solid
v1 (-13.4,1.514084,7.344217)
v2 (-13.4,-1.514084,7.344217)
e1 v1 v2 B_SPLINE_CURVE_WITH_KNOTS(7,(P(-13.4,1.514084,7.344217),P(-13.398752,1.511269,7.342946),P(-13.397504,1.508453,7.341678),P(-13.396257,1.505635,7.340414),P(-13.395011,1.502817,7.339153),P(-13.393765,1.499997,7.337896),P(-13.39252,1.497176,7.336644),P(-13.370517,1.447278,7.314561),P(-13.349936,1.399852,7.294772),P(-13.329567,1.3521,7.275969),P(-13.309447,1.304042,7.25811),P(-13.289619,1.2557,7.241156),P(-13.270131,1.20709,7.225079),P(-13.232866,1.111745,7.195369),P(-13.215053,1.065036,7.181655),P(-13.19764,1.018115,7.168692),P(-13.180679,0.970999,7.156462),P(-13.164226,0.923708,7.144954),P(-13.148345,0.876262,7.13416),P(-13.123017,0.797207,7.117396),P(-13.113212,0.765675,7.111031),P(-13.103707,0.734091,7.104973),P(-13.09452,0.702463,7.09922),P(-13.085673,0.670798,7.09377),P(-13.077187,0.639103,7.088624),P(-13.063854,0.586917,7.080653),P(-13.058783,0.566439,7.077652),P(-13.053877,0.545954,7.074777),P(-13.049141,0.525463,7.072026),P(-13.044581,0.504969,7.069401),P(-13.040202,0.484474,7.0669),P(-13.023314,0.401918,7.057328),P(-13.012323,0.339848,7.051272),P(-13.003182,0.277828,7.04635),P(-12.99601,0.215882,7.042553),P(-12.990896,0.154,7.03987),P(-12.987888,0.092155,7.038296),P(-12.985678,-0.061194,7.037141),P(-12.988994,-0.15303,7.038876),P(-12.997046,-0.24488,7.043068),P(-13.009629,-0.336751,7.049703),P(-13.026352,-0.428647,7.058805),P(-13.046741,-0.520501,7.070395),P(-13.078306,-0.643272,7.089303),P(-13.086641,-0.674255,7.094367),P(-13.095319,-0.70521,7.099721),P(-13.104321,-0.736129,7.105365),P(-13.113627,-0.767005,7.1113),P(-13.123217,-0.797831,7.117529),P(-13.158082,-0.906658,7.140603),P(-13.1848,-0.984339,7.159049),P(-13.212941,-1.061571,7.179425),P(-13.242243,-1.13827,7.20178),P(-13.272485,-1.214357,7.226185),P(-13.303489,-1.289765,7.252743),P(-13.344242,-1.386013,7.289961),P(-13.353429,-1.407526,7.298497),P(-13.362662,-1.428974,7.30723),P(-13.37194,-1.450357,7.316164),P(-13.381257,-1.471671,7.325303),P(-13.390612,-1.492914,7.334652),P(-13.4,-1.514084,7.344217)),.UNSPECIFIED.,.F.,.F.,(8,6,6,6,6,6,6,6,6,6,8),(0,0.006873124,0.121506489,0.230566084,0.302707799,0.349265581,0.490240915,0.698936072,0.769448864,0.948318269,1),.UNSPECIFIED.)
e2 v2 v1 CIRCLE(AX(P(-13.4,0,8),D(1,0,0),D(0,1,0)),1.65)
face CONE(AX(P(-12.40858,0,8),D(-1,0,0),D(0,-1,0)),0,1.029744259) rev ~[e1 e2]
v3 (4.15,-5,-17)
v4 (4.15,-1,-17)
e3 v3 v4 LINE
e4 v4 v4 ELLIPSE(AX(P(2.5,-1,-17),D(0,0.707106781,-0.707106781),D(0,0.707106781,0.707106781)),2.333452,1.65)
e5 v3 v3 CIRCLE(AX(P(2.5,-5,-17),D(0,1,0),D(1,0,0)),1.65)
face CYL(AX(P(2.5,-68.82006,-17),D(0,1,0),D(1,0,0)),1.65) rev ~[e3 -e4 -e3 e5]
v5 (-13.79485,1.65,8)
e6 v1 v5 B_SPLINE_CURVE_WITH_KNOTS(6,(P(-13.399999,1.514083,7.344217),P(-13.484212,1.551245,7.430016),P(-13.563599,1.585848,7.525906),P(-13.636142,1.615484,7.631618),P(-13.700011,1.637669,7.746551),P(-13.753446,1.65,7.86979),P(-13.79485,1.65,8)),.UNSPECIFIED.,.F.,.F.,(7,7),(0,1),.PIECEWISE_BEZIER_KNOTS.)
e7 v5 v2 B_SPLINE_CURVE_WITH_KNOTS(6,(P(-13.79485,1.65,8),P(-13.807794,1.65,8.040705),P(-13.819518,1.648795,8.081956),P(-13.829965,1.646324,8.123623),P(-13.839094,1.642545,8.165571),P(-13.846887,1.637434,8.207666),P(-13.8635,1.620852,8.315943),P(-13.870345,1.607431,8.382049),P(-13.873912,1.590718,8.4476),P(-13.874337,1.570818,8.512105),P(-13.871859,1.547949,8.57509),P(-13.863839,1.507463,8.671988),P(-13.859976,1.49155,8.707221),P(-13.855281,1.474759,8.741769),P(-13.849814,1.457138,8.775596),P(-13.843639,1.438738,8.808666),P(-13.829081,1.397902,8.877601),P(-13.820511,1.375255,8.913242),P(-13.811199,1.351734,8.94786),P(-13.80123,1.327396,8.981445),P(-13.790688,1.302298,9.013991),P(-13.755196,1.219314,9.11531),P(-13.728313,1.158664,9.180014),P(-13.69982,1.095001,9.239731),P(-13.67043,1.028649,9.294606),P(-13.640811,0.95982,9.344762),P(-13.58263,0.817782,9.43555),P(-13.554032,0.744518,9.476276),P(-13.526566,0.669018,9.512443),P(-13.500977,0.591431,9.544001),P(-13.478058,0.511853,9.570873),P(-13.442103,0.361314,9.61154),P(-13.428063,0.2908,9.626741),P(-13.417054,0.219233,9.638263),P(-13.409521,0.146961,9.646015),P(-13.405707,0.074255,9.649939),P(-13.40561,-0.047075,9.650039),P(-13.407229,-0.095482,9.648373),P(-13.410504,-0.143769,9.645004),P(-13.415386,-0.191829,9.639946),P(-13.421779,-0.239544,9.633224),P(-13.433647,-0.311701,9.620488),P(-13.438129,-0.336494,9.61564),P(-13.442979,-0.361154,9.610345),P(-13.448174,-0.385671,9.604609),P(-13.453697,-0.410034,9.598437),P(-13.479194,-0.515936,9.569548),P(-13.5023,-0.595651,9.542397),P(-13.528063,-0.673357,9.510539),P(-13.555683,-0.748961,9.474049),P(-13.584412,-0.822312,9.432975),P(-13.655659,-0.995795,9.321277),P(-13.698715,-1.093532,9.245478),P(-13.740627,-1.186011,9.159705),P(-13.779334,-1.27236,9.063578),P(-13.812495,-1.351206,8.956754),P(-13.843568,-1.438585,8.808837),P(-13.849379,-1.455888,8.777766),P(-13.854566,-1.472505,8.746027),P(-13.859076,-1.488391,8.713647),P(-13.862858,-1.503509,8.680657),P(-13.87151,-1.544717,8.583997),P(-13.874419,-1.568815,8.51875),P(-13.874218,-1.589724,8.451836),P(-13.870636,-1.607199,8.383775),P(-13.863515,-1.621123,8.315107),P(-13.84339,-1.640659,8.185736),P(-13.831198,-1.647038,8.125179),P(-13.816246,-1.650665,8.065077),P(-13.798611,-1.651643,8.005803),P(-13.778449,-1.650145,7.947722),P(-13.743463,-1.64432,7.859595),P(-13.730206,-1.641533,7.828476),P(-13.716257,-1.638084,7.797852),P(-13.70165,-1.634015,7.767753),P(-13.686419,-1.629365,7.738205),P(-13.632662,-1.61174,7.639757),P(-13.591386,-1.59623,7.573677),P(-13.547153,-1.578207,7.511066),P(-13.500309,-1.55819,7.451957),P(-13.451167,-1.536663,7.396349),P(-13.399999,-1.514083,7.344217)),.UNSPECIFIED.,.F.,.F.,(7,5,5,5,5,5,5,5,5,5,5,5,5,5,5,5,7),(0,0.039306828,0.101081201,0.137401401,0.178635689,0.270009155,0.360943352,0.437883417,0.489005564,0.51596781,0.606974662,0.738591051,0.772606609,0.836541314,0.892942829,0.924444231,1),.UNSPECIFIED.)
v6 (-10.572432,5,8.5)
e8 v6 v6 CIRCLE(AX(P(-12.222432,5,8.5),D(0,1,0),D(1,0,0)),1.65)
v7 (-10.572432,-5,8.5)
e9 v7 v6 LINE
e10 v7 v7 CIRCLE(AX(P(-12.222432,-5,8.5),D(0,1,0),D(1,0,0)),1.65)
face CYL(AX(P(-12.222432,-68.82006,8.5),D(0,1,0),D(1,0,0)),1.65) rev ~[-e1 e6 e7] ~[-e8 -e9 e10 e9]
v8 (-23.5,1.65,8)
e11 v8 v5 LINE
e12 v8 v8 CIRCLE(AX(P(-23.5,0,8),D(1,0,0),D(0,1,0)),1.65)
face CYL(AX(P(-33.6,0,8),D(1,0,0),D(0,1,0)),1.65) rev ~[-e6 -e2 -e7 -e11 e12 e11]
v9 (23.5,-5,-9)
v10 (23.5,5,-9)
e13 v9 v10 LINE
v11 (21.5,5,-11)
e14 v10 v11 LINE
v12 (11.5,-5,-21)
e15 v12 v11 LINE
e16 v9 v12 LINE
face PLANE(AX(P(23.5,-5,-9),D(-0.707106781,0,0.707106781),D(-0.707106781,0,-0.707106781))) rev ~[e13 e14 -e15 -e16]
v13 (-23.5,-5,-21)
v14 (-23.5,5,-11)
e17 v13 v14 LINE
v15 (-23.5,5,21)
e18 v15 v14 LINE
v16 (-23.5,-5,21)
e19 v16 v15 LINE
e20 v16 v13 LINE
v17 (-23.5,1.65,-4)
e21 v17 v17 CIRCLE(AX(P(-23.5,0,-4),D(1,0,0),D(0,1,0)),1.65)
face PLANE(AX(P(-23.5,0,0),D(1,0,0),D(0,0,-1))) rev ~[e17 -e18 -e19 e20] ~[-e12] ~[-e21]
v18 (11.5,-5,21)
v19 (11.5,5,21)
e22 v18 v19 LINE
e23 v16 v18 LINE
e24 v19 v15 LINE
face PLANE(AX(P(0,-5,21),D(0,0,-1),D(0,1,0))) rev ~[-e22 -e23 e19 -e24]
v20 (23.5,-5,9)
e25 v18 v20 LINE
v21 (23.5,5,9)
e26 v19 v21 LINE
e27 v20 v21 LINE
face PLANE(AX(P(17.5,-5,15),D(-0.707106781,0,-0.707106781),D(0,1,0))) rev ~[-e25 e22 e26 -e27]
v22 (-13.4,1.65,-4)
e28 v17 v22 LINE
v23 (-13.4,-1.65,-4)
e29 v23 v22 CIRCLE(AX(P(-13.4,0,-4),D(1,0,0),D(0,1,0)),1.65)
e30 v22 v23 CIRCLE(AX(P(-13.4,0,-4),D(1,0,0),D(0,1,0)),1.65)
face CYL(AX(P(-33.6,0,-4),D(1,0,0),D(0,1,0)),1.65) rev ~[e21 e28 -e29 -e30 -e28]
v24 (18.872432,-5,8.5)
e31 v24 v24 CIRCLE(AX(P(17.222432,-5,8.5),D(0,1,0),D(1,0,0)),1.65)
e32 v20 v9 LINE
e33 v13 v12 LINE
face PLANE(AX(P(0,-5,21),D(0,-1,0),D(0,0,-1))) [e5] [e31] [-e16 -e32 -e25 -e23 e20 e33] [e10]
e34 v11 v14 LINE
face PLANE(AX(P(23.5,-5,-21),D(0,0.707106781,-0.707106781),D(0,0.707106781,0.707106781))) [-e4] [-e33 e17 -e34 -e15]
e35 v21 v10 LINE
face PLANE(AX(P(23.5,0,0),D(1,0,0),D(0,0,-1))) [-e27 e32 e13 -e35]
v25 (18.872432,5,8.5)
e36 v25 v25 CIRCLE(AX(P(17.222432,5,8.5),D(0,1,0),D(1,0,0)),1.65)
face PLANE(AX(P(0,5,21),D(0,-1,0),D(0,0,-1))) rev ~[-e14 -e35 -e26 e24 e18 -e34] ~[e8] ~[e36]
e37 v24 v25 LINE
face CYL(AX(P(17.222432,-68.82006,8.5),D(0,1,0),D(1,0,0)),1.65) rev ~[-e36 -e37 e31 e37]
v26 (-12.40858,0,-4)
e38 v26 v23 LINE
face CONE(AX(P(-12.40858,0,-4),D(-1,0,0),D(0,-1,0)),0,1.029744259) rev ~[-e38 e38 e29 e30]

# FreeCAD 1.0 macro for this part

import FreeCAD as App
import Part
import Sketcher

V = App.Vector
Q = App.Units.Quantity


def edges_at(feature, points):
    """Names of the edges that pass closest to the given points."""
    edges = feature.Shape.Edges
    near = lambda p: min(range(len(edges)), key=lambda i: edges[i].distToShape(Part.Vertex(*p))[0])
    return sorted({f"Edge{near(p) + 1}" for p in points})

doc = App.newDocument("Part")
body = doc.addObject("PartDesign::Body", "Body")

# Sketch on YZ plane
sketch1 = doc.addObject("Sketcher::SketchObject", "Sketch")
body.addObject(sketch1)
sketch1.AttachmentSupport = (doc.YZ_Plane, [""])
sketch1.MapMode = "FlatFace"
sketch1.addGeometry([
    Part.LineSegment(V(5, 21, 0), V(-5, 21, 0)),
    Part.LineSegment(V(-5, 21, 0), V(-5, -21, 0)),
    Part.LineSegment(V(-5, -21, 0), V(5, -21, 0)),
    Part.LineSegment(V(5, -21, 0), V(5, 21, 0)),
], False)
sketch1.addConstraint([
    Sketcher.Constraint("Coincident", 0, 2, 1, 1),
    Sketcher.Constraint("Coincident", 1, 2, 2, 1),
    Sketcher.Constraint("Coincident", 2, 2, 3, 1),
    Sketcher.Constraint("Coincident", 3, 2, 0, 1),
    Sketcher.Constraint("Horizontal", 0),
    Sketcher.Constraint("Vertical", 1),
    Sketcher.Constraint("Horizontal", 2),
    Sketcher.Constraint("Vertical", 3),
    Sketcher.Constraint("Symmetric", 0, 2, 2, 2, -1, 1),
    Sketcher.Constraint("DistanceX", 0, 2, 0, 1, Q("10 mm")),
    Sketcher.Constraint("DistanceY", 1, 2, 1, 1, Q("42 mm")),
])
pad1 = doc.addObject("PartDesign::Pad", "Pad")
body.addObject(pad1)
pad1.Profile = sketch1
pad1.Length = 47
pad1.Midplane = True

# Sketch on YZ plane
sketch2 = doc.addObject("Sketcher::SketchObject", "Sketch001")
body.addObject(sketch2)
sketch2.AttachmentSupport = (doc.YZ_Plane, [""])
sketch2.MapMode = "FlatFace"
sketch2.AttachmentOffset = App.Placement(V(0, 0, 23.5), App.Rotation())
sketch2.addGeometry([
    Part.LineSegment(V(5, -11, 0), V(-5, -21, 0)),
    Part.LineSegment(V(-5, -21, 0), V(5, -21, 0)),
    Part.LineSegment(V(5, -21, 0), V(5, -11, 0)),
], False)
sketch2.addConstraint([
    Sketcher.Constraint("Coincident", 0, 2, 1, 1),
    Sketcher.Constraint("Coincident", 1, 2, 2, 1),
    Sketcher.Constraint("Coincident", 2, 2, 0, 1),
    Sketcher.Constraint("Horizontal", 1),
    Sketcher.Constraint("Vertical", 2),
    Sketcher.Constraint("Equal", 1, 2),
    Sketcher.Constraint("DistanceX", 1, 1, 1, 2, Q("10 mm")),
    Sketcher.Constraint("DistanceX", 0, 2, -1, 1, Q("5 mm")),
    Sketcher.Constraint("DistanceY", 0, 2, -1, 1, Q("21 mm")),
])
pocket1 = doc.addObject("PartDesign::Pocket", "Pocket")
body.addObject(pocket1)
pocket1.Profile = sketch2
pocket1.Type = "ThroughAll"

# Sketch on YZ plane
sketch3 = doc.addObject("Sketcher::SketchObject", "Sketch002")
body.addObject(sketch3)
sketch3.AttachmentSupport = (doc.YZ_Plane, [""])
sketch3.MapMode = "FlatFace"
sketch3.AttachmentOffset = App.Placement(V(0, 0, -23.5), App.Rotation())
sketch3.addGeometry([
    Part.Circle(V(0, 8, 0), V(0, 0, 1), 1.6),
    Part.Circle(V(0, -4, 0), V(0, 0, 1), 1.6),
], False)
sketch3.addConstraint([
    Sketcher.Constraint("Equal", 0, 1),
    Sketcher.Constraint("PointOnObject", 0, 3, -2),
    Sketcher.Constraint("PointOnObject", 1, 3, -2),
    Sketcher.Constraint("Diameter", 0, Q("3.3 mm")),
    Sketcher.Constraint("DistanceY", -1, 1, 0, 3, Q("8 mm")),
    Sketcher.Constraint("DistanceY", 1, 3, -1, 1, Q("4 mm")),
])
doc.recompute()
hole = doc.addObject("PartDesign::Hole", "Hole")
body.addObject(hole)
hole.Profile = sketch3
hole.ThreadType = "None"
hole.Diameter = 3.3
hole.DepthType = "Dimension"
hole.Depth = 10.1
hole.DrillPoint = "Angled"
hole.DrillPointAngle = 118
hole.Reversed = True

# Sketch on XZ plane
sketch4 = doc.addObject("Sketcher::SketchObject", "Sketch003")
body.addObject(sketch4)
sketch4.AttachmentSupport = (doc.XZ_Plane, [""])
sketch4.MapMode = "FlatFace"
sketch4.AttachmentOffset = App.Placement(V(0, 0, 5), App.Rotation())
sketch4.addGeometry([
    Part.Circle(V(2.5, -17, 0), V(0, 0, 1), 1.6),
    Part.Circle(V(17.2, 8.5, 0), V(0, 0, 1), 1.6),
    Part.Circle(V(-12.2, 8.5, 0), V(0, 0, 1), 1.6),
], False)
sketch4.addConstraint([
    Sketcher.Constraint("Equal", 0, 1),
    Sketcher.Constraint("Equal", 1, 2),
    Sketcher.Constraint("Horizontal", 1, 3, 2, 3),
    Sketcher.Constraint("Diameter", 0, Q("3.3 mm")),
    Sketcher.Constraint("DistanceY", 0, 3, -1, 1, Q("17 mm")),
    Sketcher.Constraint("DistanceX", -1, 1, 0, 3, Q("2.5 mm")),
    Sketcher.Constraint("DistanceY", -1, 1, 1, 3, Q("8.5 mm")),
    Sketcher.Constraint("DistanceX", -1, 1, 1, 3, Q("17.222432 mm")),
    Sketcher.Constraint("DistanceX", 2, 3, -1, 1, Q("12.222432 mm")),
])
doc.recompute()
hole2 = doc.addObject("PartDesign::Hole", "Hole001")
body.addObject(hole2)
hole2.Profile = sketch4
hole2.ThreadType = "None"
hole2.Diameter = 3.3
hole2.DepthType = "ThroughAll"
doc.recompute()

chamfer = doc.addObject("PartDesign::Chamfer", "Chamfer")
body.addObject(chamfer)
chamfer.Base = (hole2, edges_at(hole2, [(23.5, 0, 21)]))
chamfer.Size = 12

# Sketch on XZ plane
sketch5 = doc.addObject("Sketcher::SketchObject", "Sketch004")
body.addObject(sketch5)
sketch5.AttachmentSupport = (doc.XZ_Plane, [""])
sketch5.MapMode = "FlatFace"
sketch5.AttachmentOffset = App.Placement(V(0, 0, 5), App.Rotation())
sketch5.addGeometry([
    Part.LineSegment(V(24, -9, 0), V(12, -21, 0)),
    Part.LineSegment(V(12, -21, 0), V(24, -21, 0)),
    Part.LineSegment(V(24, -21, 0), V(24, -9, 0)),
], False)
sketch5.addConstraint([
    Sketcher.Constraint("Coincident", 0, 2, 1, 1),
    Sketcher.Constraint("Coincident", 1, 2, 2, 1),
    Sketcher.Constraint("Coincident", 2, 2, 0, 1),
    Sketcher.Constraint("Horizontal", 1),
    Sketcher.Constraint("Vertical", 2),
    Sketcher.Constraint("Equal", 1, 2),
    Sketcher.Constraint("DistanceX", 1, 1, 1, 2, Q("12 mm")),
    Sketcher.Constraint("DistanceY", 0, 2, -1, 1, Q("21 mm")),
    Sketcher.Constraint("DistanceX", -1, 1, 0, 2, Q("11.5 mm")),
])
pocket2 = doc.addObject("PartDesign::Pocket", "Pocket001")
body.addObject(pocket2)
pocket2.Profile = sketch5
pocket2.Type = "ThroughAll"

doc.recompute()
